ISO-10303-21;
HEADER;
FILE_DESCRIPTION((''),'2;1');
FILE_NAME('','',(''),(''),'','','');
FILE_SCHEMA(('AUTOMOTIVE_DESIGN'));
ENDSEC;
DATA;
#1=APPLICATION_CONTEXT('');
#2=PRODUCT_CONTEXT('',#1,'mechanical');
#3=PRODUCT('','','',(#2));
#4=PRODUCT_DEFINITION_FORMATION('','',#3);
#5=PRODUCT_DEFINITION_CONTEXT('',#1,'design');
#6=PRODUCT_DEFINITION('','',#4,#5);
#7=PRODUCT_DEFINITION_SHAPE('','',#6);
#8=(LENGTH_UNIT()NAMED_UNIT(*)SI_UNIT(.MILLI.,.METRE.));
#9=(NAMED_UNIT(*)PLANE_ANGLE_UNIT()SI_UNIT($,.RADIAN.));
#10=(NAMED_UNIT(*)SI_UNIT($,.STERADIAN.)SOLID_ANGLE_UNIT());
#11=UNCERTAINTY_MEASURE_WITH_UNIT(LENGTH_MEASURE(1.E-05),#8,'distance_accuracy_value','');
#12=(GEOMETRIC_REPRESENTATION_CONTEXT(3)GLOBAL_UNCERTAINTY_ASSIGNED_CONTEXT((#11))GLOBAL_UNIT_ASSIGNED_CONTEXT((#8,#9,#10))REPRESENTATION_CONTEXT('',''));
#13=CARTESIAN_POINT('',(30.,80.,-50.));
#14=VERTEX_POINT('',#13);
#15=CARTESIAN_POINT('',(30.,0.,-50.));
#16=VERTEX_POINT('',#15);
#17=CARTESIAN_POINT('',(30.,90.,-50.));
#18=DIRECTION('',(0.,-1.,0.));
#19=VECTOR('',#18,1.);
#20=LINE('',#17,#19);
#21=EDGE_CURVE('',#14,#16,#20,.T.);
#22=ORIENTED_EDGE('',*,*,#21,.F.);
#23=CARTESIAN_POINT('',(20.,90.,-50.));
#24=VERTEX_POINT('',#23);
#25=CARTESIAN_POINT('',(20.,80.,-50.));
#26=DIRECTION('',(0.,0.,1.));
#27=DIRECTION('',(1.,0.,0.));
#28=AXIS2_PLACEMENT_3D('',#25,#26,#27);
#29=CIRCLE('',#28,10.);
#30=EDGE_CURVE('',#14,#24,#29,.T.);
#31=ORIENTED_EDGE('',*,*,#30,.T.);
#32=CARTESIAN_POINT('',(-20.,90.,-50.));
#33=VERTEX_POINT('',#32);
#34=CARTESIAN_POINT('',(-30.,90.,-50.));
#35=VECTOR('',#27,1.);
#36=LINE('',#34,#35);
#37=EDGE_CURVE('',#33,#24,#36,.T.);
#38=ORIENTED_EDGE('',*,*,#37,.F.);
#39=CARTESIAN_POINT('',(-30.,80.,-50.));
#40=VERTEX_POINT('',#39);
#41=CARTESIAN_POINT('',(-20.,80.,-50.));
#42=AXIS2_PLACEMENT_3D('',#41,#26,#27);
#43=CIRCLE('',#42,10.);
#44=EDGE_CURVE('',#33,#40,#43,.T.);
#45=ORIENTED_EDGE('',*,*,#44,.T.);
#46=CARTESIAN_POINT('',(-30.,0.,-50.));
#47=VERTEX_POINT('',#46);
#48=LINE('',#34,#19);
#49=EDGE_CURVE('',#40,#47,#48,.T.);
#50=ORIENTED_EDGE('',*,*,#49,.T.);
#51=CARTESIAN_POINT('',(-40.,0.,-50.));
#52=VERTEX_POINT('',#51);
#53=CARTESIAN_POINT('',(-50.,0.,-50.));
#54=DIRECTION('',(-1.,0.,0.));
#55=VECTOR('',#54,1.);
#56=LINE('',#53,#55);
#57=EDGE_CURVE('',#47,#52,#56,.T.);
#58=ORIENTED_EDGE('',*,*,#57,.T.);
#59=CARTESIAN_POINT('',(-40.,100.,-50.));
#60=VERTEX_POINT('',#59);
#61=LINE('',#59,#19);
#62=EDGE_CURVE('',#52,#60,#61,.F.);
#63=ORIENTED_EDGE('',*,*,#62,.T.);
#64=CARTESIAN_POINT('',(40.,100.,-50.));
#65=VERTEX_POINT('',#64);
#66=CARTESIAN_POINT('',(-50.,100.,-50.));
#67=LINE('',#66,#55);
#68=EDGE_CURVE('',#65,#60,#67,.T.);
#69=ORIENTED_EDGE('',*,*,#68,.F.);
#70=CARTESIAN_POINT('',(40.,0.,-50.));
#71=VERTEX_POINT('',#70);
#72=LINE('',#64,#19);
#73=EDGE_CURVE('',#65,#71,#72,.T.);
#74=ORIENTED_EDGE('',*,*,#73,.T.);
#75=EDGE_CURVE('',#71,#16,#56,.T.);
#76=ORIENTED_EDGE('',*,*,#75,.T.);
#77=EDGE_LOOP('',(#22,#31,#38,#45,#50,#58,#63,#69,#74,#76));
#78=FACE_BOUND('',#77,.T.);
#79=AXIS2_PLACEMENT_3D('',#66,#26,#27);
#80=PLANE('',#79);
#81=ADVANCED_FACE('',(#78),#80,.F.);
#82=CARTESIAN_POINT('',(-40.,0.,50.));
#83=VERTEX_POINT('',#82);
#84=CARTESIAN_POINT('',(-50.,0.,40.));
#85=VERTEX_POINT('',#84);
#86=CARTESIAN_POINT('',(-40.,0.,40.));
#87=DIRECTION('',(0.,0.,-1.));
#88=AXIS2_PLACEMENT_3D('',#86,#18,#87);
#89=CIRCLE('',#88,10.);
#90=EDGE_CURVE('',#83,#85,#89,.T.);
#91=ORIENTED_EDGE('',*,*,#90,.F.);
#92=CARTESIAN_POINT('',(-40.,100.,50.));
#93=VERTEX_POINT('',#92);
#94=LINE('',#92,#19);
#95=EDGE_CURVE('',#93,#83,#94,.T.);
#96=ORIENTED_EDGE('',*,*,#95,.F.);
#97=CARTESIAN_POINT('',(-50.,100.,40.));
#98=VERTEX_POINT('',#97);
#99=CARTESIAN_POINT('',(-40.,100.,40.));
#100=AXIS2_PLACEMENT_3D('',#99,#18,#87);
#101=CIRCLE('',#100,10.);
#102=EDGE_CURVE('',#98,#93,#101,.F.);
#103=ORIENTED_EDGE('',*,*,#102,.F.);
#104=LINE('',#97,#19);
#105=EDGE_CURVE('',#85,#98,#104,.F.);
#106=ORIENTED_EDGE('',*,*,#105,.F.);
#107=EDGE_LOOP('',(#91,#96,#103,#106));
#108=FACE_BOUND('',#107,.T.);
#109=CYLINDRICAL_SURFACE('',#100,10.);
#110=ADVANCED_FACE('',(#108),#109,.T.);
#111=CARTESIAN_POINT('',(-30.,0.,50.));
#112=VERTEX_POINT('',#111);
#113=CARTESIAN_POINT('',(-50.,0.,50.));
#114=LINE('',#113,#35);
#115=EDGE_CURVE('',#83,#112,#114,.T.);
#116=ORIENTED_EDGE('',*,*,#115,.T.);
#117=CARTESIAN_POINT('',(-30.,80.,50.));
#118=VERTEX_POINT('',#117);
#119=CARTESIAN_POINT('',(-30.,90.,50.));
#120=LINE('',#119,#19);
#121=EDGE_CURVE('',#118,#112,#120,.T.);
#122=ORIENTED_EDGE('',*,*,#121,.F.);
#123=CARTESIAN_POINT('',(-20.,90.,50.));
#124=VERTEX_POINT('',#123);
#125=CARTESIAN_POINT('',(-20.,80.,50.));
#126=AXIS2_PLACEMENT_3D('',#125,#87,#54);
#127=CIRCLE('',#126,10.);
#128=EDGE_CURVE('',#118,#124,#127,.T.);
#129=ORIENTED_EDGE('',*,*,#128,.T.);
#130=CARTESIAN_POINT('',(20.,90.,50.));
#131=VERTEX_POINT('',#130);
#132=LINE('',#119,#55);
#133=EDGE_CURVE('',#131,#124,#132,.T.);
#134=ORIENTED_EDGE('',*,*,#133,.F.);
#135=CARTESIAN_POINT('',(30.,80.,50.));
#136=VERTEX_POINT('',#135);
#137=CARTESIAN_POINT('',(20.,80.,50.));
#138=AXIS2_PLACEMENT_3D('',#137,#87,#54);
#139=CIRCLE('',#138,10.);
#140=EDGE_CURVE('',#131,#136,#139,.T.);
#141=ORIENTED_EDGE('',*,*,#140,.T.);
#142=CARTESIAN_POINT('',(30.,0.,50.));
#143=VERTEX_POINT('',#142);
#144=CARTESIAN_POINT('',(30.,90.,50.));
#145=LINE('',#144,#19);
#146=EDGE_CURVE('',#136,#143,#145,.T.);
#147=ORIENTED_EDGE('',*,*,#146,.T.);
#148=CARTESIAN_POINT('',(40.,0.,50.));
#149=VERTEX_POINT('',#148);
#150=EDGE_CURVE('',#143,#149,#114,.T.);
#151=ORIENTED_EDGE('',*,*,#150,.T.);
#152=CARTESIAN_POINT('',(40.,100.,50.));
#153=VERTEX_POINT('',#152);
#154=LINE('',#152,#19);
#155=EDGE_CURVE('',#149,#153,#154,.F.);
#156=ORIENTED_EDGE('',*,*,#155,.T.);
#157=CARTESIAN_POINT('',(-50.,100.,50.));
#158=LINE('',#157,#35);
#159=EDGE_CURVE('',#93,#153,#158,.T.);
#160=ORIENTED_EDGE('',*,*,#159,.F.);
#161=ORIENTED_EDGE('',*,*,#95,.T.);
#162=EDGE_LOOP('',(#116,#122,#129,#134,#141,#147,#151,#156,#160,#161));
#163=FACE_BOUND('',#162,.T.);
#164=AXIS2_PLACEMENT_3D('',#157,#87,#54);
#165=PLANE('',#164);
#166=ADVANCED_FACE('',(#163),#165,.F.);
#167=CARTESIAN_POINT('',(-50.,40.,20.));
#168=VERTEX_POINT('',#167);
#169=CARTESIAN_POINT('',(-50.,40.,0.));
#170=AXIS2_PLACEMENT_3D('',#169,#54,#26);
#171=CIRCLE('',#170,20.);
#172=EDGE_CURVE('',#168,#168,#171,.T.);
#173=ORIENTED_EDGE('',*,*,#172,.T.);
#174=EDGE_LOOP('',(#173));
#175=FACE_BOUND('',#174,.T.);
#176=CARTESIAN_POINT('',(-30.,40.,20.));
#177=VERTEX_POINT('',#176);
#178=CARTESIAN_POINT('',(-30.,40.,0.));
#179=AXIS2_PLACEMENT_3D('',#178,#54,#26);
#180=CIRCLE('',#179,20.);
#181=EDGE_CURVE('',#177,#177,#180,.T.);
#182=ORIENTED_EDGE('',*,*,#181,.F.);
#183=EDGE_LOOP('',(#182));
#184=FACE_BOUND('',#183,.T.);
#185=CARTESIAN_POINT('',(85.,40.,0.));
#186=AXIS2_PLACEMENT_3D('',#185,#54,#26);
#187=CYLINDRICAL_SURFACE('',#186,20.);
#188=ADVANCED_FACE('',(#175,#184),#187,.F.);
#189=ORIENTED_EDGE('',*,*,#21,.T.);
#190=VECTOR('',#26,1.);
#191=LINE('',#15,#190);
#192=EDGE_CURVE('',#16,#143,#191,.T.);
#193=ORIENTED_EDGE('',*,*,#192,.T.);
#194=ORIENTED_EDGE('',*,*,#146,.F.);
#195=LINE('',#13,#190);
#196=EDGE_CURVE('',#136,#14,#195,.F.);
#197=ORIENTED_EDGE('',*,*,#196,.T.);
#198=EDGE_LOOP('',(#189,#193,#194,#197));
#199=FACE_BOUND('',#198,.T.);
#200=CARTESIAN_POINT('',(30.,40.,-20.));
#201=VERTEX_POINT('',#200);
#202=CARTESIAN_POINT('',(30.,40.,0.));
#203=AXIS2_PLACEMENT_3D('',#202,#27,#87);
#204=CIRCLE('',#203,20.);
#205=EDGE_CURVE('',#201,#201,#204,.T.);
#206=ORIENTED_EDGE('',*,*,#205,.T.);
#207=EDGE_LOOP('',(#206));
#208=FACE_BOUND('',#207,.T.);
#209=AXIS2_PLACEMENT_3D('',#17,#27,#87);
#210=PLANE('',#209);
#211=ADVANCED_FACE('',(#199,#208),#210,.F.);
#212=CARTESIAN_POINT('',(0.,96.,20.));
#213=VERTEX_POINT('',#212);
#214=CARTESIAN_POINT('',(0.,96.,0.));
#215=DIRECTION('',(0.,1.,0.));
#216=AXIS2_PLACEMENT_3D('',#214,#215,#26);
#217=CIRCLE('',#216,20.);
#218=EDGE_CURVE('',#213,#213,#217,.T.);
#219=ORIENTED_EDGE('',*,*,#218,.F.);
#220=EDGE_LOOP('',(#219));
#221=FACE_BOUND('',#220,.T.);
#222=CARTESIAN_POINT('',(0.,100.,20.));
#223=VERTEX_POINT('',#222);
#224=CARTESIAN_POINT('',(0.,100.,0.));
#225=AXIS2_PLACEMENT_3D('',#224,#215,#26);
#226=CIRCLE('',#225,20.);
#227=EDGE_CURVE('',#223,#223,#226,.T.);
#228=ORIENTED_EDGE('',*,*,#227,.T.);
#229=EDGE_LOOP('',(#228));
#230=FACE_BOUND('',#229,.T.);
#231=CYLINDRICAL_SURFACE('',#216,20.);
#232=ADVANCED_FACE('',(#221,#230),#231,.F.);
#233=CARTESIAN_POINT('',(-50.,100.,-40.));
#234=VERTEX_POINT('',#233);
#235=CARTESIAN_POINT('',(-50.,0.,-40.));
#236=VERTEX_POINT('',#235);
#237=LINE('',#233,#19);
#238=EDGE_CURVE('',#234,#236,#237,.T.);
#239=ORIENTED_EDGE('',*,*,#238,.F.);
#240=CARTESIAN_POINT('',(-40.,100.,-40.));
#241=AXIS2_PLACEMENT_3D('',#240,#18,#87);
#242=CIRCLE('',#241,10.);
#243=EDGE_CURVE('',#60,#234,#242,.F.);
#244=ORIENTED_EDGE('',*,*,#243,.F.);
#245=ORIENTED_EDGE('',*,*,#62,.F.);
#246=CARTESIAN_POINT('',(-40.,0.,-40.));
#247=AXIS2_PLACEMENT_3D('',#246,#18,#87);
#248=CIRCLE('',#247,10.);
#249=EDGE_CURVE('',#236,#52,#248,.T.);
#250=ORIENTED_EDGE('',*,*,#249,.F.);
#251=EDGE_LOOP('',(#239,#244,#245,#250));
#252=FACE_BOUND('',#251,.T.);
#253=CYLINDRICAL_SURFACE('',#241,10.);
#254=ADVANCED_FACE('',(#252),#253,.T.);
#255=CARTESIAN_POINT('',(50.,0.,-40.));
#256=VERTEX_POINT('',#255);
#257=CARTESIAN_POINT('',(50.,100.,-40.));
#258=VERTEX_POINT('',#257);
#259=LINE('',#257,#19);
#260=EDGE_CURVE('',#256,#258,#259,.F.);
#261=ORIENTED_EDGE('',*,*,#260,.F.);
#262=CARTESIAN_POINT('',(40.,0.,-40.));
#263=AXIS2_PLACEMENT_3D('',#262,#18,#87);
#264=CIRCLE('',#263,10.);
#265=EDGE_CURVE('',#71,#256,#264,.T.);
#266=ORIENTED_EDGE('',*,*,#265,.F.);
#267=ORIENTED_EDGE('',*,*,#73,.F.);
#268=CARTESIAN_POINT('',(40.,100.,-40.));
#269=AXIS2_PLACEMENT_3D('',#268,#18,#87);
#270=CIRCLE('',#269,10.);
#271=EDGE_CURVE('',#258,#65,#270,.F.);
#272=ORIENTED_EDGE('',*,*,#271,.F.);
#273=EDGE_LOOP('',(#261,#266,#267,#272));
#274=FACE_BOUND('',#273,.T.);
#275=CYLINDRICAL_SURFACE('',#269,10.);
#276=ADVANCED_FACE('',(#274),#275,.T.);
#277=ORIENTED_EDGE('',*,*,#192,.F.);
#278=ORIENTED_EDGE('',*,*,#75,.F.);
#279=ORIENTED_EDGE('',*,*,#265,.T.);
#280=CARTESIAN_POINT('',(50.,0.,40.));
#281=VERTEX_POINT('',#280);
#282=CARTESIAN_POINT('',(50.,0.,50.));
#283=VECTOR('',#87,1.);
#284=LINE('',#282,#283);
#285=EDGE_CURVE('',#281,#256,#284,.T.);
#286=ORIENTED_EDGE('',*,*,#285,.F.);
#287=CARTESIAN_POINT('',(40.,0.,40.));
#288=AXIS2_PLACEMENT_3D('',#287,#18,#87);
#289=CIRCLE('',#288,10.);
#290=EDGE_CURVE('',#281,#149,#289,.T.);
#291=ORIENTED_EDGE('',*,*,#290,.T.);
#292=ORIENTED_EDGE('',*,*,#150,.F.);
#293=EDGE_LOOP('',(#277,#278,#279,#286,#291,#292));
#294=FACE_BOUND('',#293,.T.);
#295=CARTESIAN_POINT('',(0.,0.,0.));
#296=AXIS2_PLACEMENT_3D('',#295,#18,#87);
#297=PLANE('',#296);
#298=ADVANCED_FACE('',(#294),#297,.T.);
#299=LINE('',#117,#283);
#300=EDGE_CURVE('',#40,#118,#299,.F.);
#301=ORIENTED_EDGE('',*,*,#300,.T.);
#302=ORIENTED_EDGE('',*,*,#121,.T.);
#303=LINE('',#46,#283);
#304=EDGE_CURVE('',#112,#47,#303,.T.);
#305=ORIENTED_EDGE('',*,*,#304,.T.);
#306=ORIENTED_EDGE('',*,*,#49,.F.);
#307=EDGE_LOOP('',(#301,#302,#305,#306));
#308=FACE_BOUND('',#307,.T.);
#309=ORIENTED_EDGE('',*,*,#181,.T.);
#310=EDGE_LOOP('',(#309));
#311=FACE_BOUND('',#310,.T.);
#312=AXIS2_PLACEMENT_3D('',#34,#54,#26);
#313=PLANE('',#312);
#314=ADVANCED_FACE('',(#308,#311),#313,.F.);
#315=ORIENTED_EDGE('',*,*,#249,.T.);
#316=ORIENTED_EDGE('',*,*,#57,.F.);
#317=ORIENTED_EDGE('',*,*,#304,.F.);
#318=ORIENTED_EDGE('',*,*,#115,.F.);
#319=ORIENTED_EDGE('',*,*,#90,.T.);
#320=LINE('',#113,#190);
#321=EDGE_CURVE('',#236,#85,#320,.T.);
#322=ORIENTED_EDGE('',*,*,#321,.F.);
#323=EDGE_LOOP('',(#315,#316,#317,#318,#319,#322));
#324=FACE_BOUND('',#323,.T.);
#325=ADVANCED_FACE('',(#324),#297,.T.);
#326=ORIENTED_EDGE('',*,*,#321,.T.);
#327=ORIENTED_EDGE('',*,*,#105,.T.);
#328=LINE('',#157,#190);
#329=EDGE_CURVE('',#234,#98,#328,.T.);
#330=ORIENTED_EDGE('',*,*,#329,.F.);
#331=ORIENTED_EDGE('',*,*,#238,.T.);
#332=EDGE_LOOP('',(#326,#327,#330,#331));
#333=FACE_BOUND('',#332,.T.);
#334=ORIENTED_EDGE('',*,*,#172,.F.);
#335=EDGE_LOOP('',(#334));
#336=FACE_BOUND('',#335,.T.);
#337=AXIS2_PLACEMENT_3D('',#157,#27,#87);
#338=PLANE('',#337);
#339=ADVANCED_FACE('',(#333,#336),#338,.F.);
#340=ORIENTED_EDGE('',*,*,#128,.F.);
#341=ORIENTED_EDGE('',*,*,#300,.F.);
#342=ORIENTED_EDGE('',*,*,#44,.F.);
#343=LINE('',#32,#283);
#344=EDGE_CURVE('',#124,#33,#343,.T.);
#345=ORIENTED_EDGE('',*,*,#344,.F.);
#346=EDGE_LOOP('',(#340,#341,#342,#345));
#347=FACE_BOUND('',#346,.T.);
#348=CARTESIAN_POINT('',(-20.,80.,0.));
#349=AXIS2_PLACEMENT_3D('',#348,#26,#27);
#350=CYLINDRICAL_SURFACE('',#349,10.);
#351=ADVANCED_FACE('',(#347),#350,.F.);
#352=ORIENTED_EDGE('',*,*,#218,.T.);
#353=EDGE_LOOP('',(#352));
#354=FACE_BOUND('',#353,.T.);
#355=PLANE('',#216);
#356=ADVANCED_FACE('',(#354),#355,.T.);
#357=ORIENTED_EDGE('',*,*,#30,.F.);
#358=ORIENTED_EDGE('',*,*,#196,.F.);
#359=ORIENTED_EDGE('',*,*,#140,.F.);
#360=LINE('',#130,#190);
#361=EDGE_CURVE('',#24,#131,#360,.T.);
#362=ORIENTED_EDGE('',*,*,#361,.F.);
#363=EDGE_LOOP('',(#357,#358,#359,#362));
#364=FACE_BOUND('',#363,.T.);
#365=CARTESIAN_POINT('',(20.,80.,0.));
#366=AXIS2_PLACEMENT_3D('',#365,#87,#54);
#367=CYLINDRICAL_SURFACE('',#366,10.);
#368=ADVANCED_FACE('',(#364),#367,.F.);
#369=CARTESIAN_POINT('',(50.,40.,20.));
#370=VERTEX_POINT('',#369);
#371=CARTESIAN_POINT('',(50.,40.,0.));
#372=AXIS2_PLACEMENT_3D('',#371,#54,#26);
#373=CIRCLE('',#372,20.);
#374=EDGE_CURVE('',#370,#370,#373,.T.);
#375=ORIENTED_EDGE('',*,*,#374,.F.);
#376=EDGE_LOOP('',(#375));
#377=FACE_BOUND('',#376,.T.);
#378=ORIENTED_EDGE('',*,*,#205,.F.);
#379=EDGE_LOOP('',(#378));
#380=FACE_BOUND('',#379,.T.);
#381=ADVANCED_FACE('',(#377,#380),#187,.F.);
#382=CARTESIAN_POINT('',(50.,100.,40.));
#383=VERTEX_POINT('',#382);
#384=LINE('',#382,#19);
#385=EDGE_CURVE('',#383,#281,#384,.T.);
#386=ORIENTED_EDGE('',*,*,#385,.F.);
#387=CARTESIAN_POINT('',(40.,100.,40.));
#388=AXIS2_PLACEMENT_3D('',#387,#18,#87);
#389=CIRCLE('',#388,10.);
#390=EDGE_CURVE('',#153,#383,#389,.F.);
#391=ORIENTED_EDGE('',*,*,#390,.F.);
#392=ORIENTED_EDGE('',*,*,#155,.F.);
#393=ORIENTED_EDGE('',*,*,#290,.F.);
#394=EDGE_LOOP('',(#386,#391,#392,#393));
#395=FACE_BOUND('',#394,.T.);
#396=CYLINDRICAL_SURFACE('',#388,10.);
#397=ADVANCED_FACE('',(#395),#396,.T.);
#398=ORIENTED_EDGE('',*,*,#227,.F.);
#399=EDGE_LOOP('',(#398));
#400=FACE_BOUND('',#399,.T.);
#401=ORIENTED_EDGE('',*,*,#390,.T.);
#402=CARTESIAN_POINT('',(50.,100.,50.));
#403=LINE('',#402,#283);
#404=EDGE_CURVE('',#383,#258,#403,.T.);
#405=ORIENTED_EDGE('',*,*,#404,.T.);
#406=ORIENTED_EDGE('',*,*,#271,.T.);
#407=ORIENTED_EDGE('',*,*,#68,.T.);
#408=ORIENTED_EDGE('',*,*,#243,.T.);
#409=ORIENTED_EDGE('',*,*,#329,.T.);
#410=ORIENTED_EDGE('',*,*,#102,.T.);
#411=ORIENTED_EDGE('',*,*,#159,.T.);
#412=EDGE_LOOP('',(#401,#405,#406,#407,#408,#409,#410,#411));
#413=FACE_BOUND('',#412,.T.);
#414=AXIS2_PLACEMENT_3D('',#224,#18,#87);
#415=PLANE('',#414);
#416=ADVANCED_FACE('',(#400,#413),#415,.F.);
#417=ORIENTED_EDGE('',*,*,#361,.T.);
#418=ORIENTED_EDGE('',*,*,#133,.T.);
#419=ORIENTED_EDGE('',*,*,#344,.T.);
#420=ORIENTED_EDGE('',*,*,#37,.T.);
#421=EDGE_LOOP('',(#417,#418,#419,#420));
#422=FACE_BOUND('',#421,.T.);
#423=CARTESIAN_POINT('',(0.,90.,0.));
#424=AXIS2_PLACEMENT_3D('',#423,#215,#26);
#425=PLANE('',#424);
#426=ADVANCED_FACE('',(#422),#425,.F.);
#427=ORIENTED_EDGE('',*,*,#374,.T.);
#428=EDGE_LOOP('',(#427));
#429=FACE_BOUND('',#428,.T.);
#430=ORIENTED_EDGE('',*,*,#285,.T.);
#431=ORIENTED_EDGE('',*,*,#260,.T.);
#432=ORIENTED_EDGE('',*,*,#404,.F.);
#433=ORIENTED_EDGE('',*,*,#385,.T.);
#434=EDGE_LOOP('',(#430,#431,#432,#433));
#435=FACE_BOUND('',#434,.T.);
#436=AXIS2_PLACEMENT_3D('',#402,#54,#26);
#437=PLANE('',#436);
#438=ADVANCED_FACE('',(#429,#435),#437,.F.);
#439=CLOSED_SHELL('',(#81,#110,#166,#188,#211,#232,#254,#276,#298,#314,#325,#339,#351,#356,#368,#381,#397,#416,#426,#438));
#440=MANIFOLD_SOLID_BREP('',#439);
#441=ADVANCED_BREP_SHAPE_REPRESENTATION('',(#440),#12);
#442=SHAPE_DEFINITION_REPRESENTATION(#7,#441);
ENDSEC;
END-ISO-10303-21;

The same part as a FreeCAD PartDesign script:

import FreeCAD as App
import Part
import Sketcher
from FreeCAD import Vector


def edges_at(feature, points):
    """Names of the edges that pass closest to the given points."""
    edges = feature.Shape.Edges
    near = lambda p: min(range(len(edges)), key=lambda i: edges[i].distToShape(Part.Vertex(*p))[0])
    return sorted({f"Edge{near(p) + 1}" for p in points})


def add_polygon(sketch, points):
    """Adds a closed chain of lines whose ends are joined by coincident constraints."""
    first, n = sketch.GeometryCount, len(points)
    for a, b in zip(points, points[1:] + points[:1]):
        sketch.addGeometry(Part.LineSegment(App.Vector(*a, 0), App.Vector(*b, 0)), False)
    for i in range(n):
        sketch.addConstraint(Sketcher.Constraint("Coincident", first + i, 2, first + (i + 1) % n, 1))

doc = App.newDocument("Part")
body = doc.addObject("PartDesign::Body", "Body")

sketch1 = body.newObject("Sketcher::SketchObject", "Sketch")
sketch1.AttachmentSupport = (doc.getObject("XZ_Plane"), [""])
sketch1.MapMode = "FlatFace"
add_polygon(sketch1, [(-50, -50), (-50, 50), (50, 50), (50, -50)])
sketch1.addConstraint(Sketcher.Constraint("Vertical", 0))
sketch1.addConstraint(Sketcher.Constraint("Horizontal", 1))
sketch1.addConstraint(Sketcher.Constraint("Vertical", 2))
sketch1.addConstraint(Sketcher.Constraint("Horizontal", 3))
sketch1.addConstraint(Sketcher.Constraint("Symmetric", 0, 2, 2, 2, -1, 1))
sketch1.addConstraint(Sketcher.Constraint("Equal", 3, 0))
sketch1.addConstraint(Sketcher.Constraint("DistanceX", 1, 1, 1, 2, 100.0))
pad1 = body.newObject("PartDesign::Pad", "Pad")
pad1.Profile = sketch1
pad1.Length = 100
pad1.Reversed = True

sketch2 = body.newObject("Sketcher::SketchObject", "Sketch001")
sketch2.AttachmentSupport = (doc.getObject("XZ_Plane"), [""])
sketch2.MapMode = "FlatFace"
sketch2.AttachmentOffset = App.Placement(Vector(0, 0, -100), App.Rotation())
sketch2.addGeometry(Part.Circle(Vector(0, 0, 0), Vector(0, 0, 1), 20), False)
sketch2.addConstraint(Sketcher.Constraint("Coincident", 0, 3, -1, 1))
sketch2.addConstraint(Sketcher.Constraint("Diameter", 0, 40.0))
pocket1 = body.newObject("PartDesign::Pocket", "Pocket")
pocket1.Profile = sketch2
pocket1.Length = 4
pocket1.Reversed = True

sketch3 = body.newObject("Sketcher::SketchObject", "Sketch002")
sketch3.AttachmentSupport = (doc.getObject("XZ_Plane"), [""])
sketch3.MapMode = "FlatFace"
add_polygon(sketch3, [(-30, 50), (-30, -50), (30, -50), (30, 50)])
sketch3.addConstraint(Sketcher.Constraint("Vertical", 0))
sketch3.addConstraint(Sketcher.Constraint("Horizontal", 1))
sketch3.addConstraint(Sketcher.Constraint("Vertical", 2))
sketch3.addConstraint(Sketcher.Constraint("Horizontal", 3))
sketch3.addConstraint(Sketcher.Constraint("Symmetric", 0, 2, 2, 2, -1, 1))
sketch3.addConstraint(Sketcher.Constraint("DistanceX", 1, 1, 1, 2, 60.0))
sketch3.addConstraint(Sketcher.Constraint("DistanceY", 0, 2, 0, 1, 100.0))
pocket2 = body.newObject("PartDesign::Pocket", "Pocket001")
pocket2.Profile = sketch3
pocket2.Length = 90

sketch4 = body.newObject("Sketcher::SketchObject", "Sketch003")
sketch4.AttachmentSupport = (doc.getObject("YZ_Plane"), [""])
sketch4.MapMode = "FlatFace"
sketch4.AttachmentOffset = App.Placement(Vector(0, 0, -50), App.Rotation())
sketch4.addGeometry(Part.Circle(Vector(40, 0, 0), Vector(0, 0, 1), 20), False)
sketch4.addConstraint(Sketcher.Constraint("PointOnObject", 0, 3, -1))
sketch4.addConstraint(Sketcher.Constraint("Diameter", 0, 40.0))
sketch4.addConstraint(Sketcher.Constraint("DistanceX", -1, 1, 0, 3, 40.0))
pocket3 = body.newObject("PartDesign::Pocket", "Pocket002")
pocket3.Profile = sketch4
pocket3.Length = 135
pocket3.Reversed = True
doc.recompute()

fillet = body.newObject("PartDesign::Fillet", "Fillet")
fillet.Base = (pocket3, edges_at(pocket3, [
    (50, 50, 50),
    (-50, 50, 50),
    (-50, 50, -50),
    (50, 50, -50),
]))
fillet.Radius = 10
doc.recompute()

fillet2 = body.newObject("PartDesign::Fillet", "Fillet001")
fillet2.Base = (fillet, edges_at(fillet, [(30, 90, 0), (-30, 90, 0)]))
fillet2.Radius = 10

doc.recompute()
